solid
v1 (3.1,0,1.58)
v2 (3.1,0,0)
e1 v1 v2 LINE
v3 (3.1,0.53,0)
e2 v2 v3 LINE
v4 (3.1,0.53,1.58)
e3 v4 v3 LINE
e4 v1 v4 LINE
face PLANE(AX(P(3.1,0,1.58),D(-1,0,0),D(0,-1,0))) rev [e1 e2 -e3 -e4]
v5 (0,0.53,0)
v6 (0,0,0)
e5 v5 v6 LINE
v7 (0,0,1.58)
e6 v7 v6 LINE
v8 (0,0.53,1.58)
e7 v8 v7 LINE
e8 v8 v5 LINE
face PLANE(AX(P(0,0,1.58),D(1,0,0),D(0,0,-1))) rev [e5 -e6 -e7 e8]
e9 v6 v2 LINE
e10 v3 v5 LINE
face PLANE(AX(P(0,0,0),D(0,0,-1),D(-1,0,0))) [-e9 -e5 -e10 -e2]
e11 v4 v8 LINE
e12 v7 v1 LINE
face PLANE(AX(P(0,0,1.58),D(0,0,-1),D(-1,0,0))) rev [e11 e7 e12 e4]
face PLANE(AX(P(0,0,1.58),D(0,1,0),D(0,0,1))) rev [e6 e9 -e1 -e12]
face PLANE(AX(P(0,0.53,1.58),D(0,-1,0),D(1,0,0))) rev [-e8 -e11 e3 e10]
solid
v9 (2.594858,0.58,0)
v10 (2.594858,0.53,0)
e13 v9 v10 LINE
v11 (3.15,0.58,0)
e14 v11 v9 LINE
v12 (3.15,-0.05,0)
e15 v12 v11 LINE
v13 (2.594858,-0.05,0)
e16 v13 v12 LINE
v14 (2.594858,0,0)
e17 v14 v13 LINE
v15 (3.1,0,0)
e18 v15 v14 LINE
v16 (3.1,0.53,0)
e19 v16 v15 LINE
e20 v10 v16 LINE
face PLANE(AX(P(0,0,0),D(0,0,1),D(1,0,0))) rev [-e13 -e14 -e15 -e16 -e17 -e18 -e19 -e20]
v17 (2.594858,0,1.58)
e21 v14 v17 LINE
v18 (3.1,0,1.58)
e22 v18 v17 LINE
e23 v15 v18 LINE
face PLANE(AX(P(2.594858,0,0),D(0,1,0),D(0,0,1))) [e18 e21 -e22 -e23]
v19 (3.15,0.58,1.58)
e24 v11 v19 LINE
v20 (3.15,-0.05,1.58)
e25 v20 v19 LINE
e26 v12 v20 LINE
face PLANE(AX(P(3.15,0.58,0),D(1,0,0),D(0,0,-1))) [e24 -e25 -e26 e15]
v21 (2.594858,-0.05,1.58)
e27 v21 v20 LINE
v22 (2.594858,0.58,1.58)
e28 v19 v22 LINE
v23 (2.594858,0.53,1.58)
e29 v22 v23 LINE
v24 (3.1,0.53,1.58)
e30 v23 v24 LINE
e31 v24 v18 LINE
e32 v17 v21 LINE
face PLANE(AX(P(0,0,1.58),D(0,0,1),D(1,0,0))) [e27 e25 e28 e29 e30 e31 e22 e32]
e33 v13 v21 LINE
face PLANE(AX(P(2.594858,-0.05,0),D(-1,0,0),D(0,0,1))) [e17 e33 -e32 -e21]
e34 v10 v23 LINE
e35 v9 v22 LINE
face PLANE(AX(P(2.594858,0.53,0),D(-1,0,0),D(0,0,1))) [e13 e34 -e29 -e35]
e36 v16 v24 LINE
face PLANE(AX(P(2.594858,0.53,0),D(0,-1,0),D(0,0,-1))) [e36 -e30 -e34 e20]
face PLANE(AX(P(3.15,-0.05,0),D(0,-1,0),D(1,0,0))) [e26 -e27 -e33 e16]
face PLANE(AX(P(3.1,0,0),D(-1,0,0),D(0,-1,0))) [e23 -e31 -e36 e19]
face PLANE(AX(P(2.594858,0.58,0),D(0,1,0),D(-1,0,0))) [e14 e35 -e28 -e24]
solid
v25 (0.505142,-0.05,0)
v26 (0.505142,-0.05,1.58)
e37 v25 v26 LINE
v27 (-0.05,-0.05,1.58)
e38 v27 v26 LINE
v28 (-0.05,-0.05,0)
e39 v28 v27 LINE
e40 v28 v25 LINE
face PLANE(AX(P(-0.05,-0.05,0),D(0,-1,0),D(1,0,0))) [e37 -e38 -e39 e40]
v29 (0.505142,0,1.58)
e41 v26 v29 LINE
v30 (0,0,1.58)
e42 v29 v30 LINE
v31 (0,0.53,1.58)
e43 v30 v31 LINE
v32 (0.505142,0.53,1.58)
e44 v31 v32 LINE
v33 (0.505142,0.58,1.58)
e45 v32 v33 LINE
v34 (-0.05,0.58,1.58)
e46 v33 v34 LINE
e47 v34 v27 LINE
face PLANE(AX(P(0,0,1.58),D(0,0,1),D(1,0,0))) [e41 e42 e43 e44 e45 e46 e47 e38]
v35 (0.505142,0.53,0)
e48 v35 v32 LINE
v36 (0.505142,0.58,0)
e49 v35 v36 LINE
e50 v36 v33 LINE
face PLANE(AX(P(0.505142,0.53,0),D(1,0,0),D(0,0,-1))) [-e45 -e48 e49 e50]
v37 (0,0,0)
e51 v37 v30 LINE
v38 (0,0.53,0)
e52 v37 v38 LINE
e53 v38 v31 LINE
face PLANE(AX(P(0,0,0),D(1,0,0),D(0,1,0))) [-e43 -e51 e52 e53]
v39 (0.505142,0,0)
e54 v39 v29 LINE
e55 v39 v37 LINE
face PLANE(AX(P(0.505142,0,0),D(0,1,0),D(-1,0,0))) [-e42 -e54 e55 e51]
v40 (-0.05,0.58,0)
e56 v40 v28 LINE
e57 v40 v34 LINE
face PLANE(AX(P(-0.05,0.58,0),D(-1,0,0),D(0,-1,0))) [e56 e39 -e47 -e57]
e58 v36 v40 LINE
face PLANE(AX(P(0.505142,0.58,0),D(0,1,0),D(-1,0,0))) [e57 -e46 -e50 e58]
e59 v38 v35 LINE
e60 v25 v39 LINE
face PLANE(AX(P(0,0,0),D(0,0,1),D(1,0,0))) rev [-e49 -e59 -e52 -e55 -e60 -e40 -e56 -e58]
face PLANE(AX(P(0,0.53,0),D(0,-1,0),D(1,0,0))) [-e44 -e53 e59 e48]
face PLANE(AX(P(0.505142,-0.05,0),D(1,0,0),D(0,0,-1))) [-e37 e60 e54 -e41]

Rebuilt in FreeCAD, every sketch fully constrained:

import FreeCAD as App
import Part
import Sketcher
Q = App.Units.Quantity

doc = App.newDocument("Part")
body = doc.addObject("PartDesign::Body", "Body")

# Sketch on XY plane
sketch1 = doc.addObject("Sketcher::SketchObject", "Sketch")
body.addObject(sketch1)
sketch1.AttachmentSupport = (doc.XY_Plane, [""])
sketch1.MapMode = "FlatFace"
sketch1.addGeometry([
    Part.LineSegment(App.Vector(0, 0.5, 0), App.Vector(0, 0, 0)),
    Part.LineSegment(App.Vector(0, 0, 0), App.Vector(3.1, 0, 0)),
    Part.LineSegment(App.Vector(3.1, 0, 0), App.Vector(3.1, 0.5, 0)),
    Part.LineSegment(App.Vector(3.1, 0.5, 0), App.Vector(0, 0.5, 0)),
], False)
sketch1.addConstraint([
    Sketcher.Constraint("Coincident", 0, 2, 1, 1),
    Sketcher.Constraint("Coincident", 1, 2, 2, 1),
    Sketcher.Constraint("Coincident", 2, 2, 3, 1),
    Sketcher.Constraint("Coincident", 3, 2, 0, 1),
    Sketcher.Constraint("Vertical", 0),
    Sketcher.Constraint("Horizontal", 1),
    Sketcher.Constraint("Vertical", 2),
    Sketcher.Constraint("Horizontal", 3),
    Sketcher.Constraint("Coincident", 0, 2, -1, 1),
    Sketcher.Constraint("DistanceX", 1, 1, 1, 2, Q("3.1 mm")),
    Sketcher.Constraint("DistanceY", 0, 2, 0, 1, Q("0.53 mm")),
])
pad1 = doc.addObject("PartDesign::Pad", "Pad")
body.addObject(pad1)
pad1.Profile = sketch1
pad1.Length = 1.58
body2 = doc.addObject("PartDesign::Body", "Body001")

# Sketch on XY plane
sketch2 = doc.addObject("Sketcher::SketchObject", "Sketch001")
body2.addObject(sketch2)
sketch2.AttachmentSupport = (doc.getObject("XY_Plane001"), [""])
sketch2.MapMode = "FlatFace"
sketch2.AttachmentOffset = App.Placement(App.Vector(0, 0, 1.58), App.Rotation())
sketch2.addGeometry([
    Part.LineSegment(App.Vector(2.595, 0.58, 0), App.Vector(2.595, 0.53, 0)),  # 0
    Part.LineSegment(App.Vector(2.595, 0.53, 0), App.Vector(3.1, 0.53, 0)),  # 1
    Part.LineSegment(App.Vector(3.1, 0.53, 0), App.Vector(3.1, 0, 0)),  # 2
    Part.LineSegment(App.Vector(3.1, 0, 0), App.Vector(2.595, 0, 0)),  # 3
    Part.LineSegment(App.Vector(2.595, 0, 0), App.Vector(2.595, -0.05, 0)),  # 4
    Part.LineSegment(App.Vector(2.595, -0.05, 0), App.Vector(3.15, -0.05, 0)),  # 5
    Part.LineSegment(App.Vector(3.15, -0.05, 0), App.Vector(3.15, 0.58, 0)),  # 6
    Part.LineSegment(App.Vector(3.15, 0.58, 0), App.Vector(2.595, 0.58, 0)),  # 7
], False)
sketch2.addConstraint([
    Sketcher.Constraint("Coincident", 0, 2, 1, 1),
    Sketcher.Constraint("Coincident", 1, 2, 2, 1),
    Sketcher.Constraint("Coincident", 2, 2, 3, 1),
    Sketcher.Constraint("Coincident", 3, 2, 4, 1),
    Sketcher.Constraint("Coincident", 4, 2, 5, 1),
    Sketcher.Constraint("Coincident", 5, 2, 6, 1),
    Sketcher.Constraint("Coincident", 6, 2, 7, 1),
    Sketcher.Constraint("Coincident", 7, 2, 0, 1),
    Sketcher.Constraint("Vertical", 0),
    Sketcher.Constraint("Horizontal", 1),
    Sketcher.Constraint("Vertical", 2),
    Sketcher.Constraint("Horizontal", 3),
    Sketcher.Constraint("Vertical", 4),
    Sketcher.Constraint("Horizontal", 5),
    Sketcher.Constraint("Vertical", 6),
    Sketcher.Constraint("Horizontal", 7),
    Sketcher.Constraint("PointOnObject", 2, 2, -1),
    Sketcher.Constraint("Vertical", 0, 2, 3, 2),
    Sketcher.Constraint("Equal", 0, 4),
    Sketcher.Constraint("DistanceY", 0, 2, 0, 1, Q("0.05 mm")),
    Sketcher.Constraint("DistanceY", 2, 2, 2, 1, Q("0.53 mm")),
    Sketcher.Constraint("DistanceX", -1, 1, 1, 2, Q("3.1 mm")),
    Sketcher.Constraint("DistanceX", -1, 1, 5, 2, Q("3.15 mm")),
    Sketcher.Constraint("DistanceX", 1, 1, 1, 2, Q("0.505142 mm")),
])
pad2 = doc.addObject("PartDesign::Pad", "Pad001")
body2.addObject(pad2)
pad2.Profile = sketch2
pad2.Length = 1.58
pad2.Reversed = True
body3 = doc.addObject("PartDesign::Body", "Body002")

# Sketch on XY plane
sketch3 = doc.addObject("Sketcher::SketchObject", "Sketch002")
body3.addObject(sketch3)
sketch3.AttachmentSupport = (doc.getObject("XY_Plane002"), [""])
sketch3.MapMode = "FlatFace"
sketch3.AttachmentOffset = App.Placement(App.Vector(0, 0, 1.58), App.Rotation())
sketch3.addGeometry([
    Part.LineSegment(App.Vector(0, 0, 0), App.Vector(0, 0.53, 0)),  # 0
    Part.LineSegment(App.Vector(0, 0.53, 0), App.Vector(0.505, 0.53, 0)),  # 1
    Part.LineSegment(App.Vector(0.505, 0.53, 0), App.Vector(0.505, 0.58, 0)),  # 2
    Part.LineSegment(App.Vector(0.505, 0.58, 0), App.Vector(-0.05, 0.58, 0)),  # 3
    Part.LineSegment(App.Vector(-0.05, 0.58, 0), App.Vector(-0.05, -0.05, 0)),  # 4
    Part.LineSegment(App.Vector(-0.05, -0.05, 0), App.Vector(0.505, -0.05, 0)),  # 5
    Part.LineSegment(App.Vector(0.505, -0.05, 0), App.Vector(0.505, 0, 0)),  # 6
    Part.LineSegment(App.Vector(0.505, 0, 0), App.Vector(0, 0, 0)),  # 7
], False)
sketch3.addConstraint([
    Sketcher.Constraint("Coincident", 0, 2, 1, 1),
    Sketcher.Constraint("Coincident", 1, 2, 2, 1),
    Sketcher.Constraint("Coincident", 2, 2, 3, 1),
    Sketcher.Constraint("Coincident", 3, 2, 4, 1),
    Sketcher.Constraint("Coincident", 4, 2, 5, 1),
    Sketcher.Constraint("Coincident", 5, 2, 6, 1),
    Sketcher.Constraint("Coincident", 6, 2, 7, 1),
    Sketcher.Constraint("Coincident", 7, 2, 0, 1),
    Sketcher.Constraint("Vertical", 0),
    Sketcher.Constraint("Horizontal", 1),
    Sketcher.Constraint("Vertical", 2),
    Sketcher.Constraint("Horizontal", 3),
    Sketcher.Constraint("Vertical", 4),
    Sketcher.Constraint("Horizontal", 5),
    Sketcher.Constraint("Vertical", 6),
    Sketcher.Constraint("Horizontal", 7),
    Sketcher.Constraint("Coincident", 7, 2, -1, 1),
    Sketcher.Constraint("Vertical", 2, 2, 5, 2),
    Sketcher.Constraint("Equal", 2, 6),
    Sketcher.Constraint("DistanceY", 0, 1, 0, 2, Q("0.53 mm")),
    Sketcher.Constraint("DistanceY", 2, 1, 2, 2, Q("0.05 mm")),
    Sketcher.Constraint("DistanceX", 3, 2, -1, 1, Q("0.05 mm")),
    Sketcher.Constraint("DistanceX", 1, 1, 1, 2, Q("0.505142 mm")),
])
pad3 = doc.addObject("PartDesign::Pad", "Pad002")
body3.addObject(pad3)
pad3.Profile = sketch3
pad3.Length = 1.58
pad3.Reversed = True

doc.recompute()
